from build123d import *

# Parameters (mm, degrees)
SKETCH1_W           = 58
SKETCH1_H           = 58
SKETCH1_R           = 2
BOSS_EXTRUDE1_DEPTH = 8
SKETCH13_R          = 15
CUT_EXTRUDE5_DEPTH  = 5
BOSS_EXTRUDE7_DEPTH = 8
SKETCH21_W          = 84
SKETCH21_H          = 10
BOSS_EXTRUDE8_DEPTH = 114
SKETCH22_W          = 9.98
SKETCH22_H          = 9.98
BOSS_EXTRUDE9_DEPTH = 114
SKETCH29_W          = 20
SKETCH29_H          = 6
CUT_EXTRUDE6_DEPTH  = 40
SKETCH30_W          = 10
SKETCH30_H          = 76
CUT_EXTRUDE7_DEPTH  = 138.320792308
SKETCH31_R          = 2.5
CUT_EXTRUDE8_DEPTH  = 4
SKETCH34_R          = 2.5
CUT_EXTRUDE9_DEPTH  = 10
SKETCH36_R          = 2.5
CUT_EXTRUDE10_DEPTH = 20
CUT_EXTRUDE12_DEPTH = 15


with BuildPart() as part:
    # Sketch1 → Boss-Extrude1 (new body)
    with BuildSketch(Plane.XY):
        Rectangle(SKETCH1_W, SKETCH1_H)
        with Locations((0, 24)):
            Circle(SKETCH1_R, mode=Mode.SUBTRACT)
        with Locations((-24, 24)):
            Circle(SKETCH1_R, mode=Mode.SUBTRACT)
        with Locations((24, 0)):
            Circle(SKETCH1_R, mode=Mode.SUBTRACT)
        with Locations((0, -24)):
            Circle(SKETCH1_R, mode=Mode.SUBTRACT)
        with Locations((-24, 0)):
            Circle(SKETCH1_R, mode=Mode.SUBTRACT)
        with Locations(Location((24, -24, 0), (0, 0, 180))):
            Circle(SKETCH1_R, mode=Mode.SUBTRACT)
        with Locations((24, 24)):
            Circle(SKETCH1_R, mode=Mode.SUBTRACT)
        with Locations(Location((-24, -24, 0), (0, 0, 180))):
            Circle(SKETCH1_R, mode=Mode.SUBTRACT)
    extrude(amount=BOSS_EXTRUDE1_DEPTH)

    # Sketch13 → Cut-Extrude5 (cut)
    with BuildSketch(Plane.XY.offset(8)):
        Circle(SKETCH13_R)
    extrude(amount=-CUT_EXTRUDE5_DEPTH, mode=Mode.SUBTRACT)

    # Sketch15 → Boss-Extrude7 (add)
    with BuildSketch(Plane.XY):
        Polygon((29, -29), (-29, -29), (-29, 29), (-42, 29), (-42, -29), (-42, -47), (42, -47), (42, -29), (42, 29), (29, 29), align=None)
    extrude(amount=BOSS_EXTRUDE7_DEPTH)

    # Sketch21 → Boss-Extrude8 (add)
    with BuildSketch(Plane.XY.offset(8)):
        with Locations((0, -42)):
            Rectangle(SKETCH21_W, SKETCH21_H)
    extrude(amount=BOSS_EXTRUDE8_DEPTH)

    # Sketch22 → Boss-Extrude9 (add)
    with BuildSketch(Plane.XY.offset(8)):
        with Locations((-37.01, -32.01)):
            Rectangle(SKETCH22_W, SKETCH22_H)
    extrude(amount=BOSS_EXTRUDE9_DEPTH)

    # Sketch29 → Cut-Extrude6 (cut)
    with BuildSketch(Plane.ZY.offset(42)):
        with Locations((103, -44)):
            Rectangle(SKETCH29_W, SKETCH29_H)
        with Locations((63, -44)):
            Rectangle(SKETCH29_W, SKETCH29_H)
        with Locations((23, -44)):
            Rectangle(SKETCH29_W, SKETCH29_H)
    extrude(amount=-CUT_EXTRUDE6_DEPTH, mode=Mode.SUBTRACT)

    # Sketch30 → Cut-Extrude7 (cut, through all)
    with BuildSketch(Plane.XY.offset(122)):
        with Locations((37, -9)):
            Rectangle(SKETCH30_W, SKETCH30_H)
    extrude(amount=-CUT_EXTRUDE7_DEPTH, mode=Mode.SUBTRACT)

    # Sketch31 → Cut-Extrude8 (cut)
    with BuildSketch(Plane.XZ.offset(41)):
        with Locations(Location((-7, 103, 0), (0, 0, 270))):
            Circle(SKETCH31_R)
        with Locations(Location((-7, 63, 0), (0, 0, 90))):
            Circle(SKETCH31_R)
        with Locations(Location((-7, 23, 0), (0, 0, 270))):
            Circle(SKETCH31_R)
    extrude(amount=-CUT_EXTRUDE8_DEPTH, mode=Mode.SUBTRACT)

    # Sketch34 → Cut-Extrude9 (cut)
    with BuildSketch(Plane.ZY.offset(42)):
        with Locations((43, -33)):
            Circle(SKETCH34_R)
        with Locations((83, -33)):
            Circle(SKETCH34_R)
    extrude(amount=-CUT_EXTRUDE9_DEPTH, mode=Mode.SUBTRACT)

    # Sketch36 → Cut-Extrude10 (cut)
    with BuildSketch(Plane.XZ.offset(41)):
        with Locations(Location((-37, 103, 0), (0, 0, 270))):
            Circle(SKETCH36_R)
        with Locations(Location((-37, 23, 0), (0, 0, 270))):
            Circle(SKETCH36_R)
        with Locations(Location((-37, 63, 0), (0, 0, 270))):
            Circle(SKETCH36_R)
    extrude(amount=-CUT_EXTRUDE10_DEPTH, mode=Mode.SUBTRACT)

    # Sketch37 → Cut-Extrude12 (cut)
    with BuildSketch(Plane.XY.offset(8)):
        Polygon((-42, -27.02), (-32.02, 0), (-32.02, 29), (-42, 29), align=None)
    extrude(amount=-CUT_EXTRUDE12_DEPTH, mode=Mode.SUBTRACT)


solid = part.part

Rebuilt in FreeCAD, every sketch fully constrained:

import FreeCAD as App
import Part
import Sketcher

V = App.Vector

doc = App.newDocument("Part")
params = doc.addObject("Spreadsheet::Sheet", "Params")
for row, (alias, value) in enumerate([
    ("sketch1_diameter", "4 mm"),
    ("sketch1_width", "58 mm"),
    ("pad1_length", "8 mm"),
    ("sketch2_diameter", "30 mm"),
    ("pocket1_length", "5 mm"),
    ("sketch3_width", "58 mm"),
    ("sketch3_width2", "13 mm"),
    ("sketch3_height", "76 mm"),
    ("pad2_length", "8 mm"),
    ("sketch4_width", "84 mm"),
    ("sketch4_height", "10 mm"),
    ("pad3_length", "114 mm"),
    ("sketch5_width", "9.98 mm"),
    ("pad4_length", "114 mm"),
    ("sketch6_width", "6 mm"),
    ("sketch6_height", "20 mm"),
    ("pocket2_length", "40 mm"),
    ("sketch7_width", "10 mm"),
    ("sketch7_height", "76 mm"),
    ("sketch8_diameter", "5 mm"),
    ("pocket4_length", "4 mm"),
    ("sketch9_diameter", "5 mm"),
    ("pocket5_length", "10 mm"),
    ("sketch10_diameter", "5 mm"),
    ("pocket6_length", "20 mm"),
    ("sketch11_height", "29 mm"),
    ("sketch11_width", "9.98 mm"),
    ("sketch11_height2", "56.02 mm"),
    ("pocket7_length", "15 mm"),
], start=1):
    params.set(f"A{row}", alias)
    params.set(f"B{row}", "=" + value)
    params.setAlias(f"B{row}", alias)

body = doc.addObject("PartDesign::Body", "Body")

# Sketch on XY plane
sketch1 = body.newObject("Sketcher::SketchObject", "Sketch")
sketch1.AttachmentSupport = (doc.getObject("XY_Plane"), [""])
sketch1.MapMode = "FlatFace"
sketch1.addGeometry(Part.LineSegment(V(-29, 29, 0), V(-29, -29, 0)), False)
sketch1.addGeometry(Part.LineSegment(V(-29, -29, 0), V(29, -29, 0)), False)
sketch1.addGeometry(Part.LineSegment(V(29, -29, 0), V(29, 29, 0)), False)
sketch1.addGeometry(Part.LineSegment(V(29, 29, 0), V(-29, 29, 0)), False)
sketch1.addGeometry(Part.Circle(V(-24, -24, 0), V(0, 0, 1), 2), False)
sketch1.addGeometry(Part.Circle(V(0, -24, 0), V(0, 0, 1), 2), False)
sketch1.addGeometry(Part.Circle(V(24, -24, 0), V(0, 0, 1), 2), False)
sketch1.addGeometry(Part.Circle(V(-24, 0, 0), V(0, 0, 1), 2), False)
sketch1.addGeometry(Part.Circle(V(-24, 24, 0), V(0, 0, 1), 2), False)
sketch1.addGeometry(Part.Circle(V(24, 0, 0), V(0, 0, 1), 2), False)
sketch1.addGeometry(Part.Circle(V(0, 24, 0), V(0, 0, 1), 2), False)
sketch1.addGeometry(Part.Circle(V(24, 24, 0), V(0, 0, 1), 2), False)
sketch1.addConstraint(Sketcher.Constraint("Coincident", 0, 2, 1, 1))
sketch1.addConstraint(Sketcher.Constraint("Coincident", 1, 2, 2, 1))
sketch1.addConstraint(Sketcher.Constraint("Coincident", 2, 2, 3, 1))
sketch1.addConstraint(Sketcher.Constraint("Coincident", 3, 2, 0, 1))
sketch1.addConstraint(Sketcher.Constraint("Vertical", 0))
sketch1.addConstraint(Sketcher.Constraint("Horizontal", 1))
sketch1.addConstraint(Sketcher.Constraint("Vertical", 2))
sketch1.addConstraint(Sketcher.Constraint("Horizontal", 3))
sketch1.addConstraint(Sketcher.Constraint("Equal", 4, 5))
sketch1.addConstraint(Sketcher.Constraint("Equal", 5, 6))
sketch1.addConstraint(Sketcher.Constraint("Equal", 6, 7))
sketch1.addConstraint(Sketcher.Constraint("Equal", 7, 8))
sketch1.addConstraint(Sketcher.Constraint("Equal", 8, 9))
sketch1.addConstraint(Sketcher.Constraint("Equal", 9, 10))
sketch1.addConstraint(Sketcher.Constraint("Equal", 10, 11))
sketch1.addConstraint(Sketcher.Constraint("Symmetric", 6, 3, 8, 3, -1, 1))
sketch1.addConstraint(Sketcher.Constraint("Symmetric", 7, 3, 9, 3, -1, 1))
sketch1.addConstraint(Sketcher.Constraint("Symmetric", 5, 3, 10, 3, -1, 1))
sketch1.addConstraint(Sketcher.Constraint("Symmetric", 4, 3, 11, 3, -1, 1))
sketch1.addConstraint(Sketcher.Constraint("Symmetric", 0, 2, 2, 2, -1, 1))
sketch1.addConstraint(Sketcher.Constraint("Symmetric", 4, 3, 6, 3, -2))
sketch1.addConstraint(Sketcher.Constraint("PointOnObject", 5, 3, -2))
sketch1.addConstraint(Sketcher.Constraint("PointOnObject", 7, 3, -1))
sketch1.addConstraint(Sketcher.Constraint("Horizontal", 4, 3, 5, 3))
sketch1.addConstraint(Sketcher.Constraint("Vertical", 4, 3, 7, 3))
sketch1.addConstraint(Sketcher.Constraint("Equal", 3, 0))
sketch1.addConstraint(Sketcher.Constraint("Diameter", 4, 4.0))
sketch1.addConstraint(Sketcher.Constraint("DistanceX", 1, 1, 1, 2, 58.0))
sketch1.addConstraint(Sketcher.Constraint("DistanceX", 4, 3, -1, 1, 24.0))
sketch1.addConstraint(Sketcher.Constraint("DistanceY", 4, 3, -1, 1, 24.0))
sketch1.setExpression("Constraints[26]", "Params.sketch1_diameter")
sketch1.setExpression("Constraints[27]", "Params.sketch1_width")
pad1 = body.newObject("PartDesign::Pad", "Pad")
pad1.Profile = sketch1
pad1.setExpression("Length", "Params.pad1_length")

# Sketch on XY plane
sketch2 = body.newObject("Sketcher::SketchObject", "Sketch001")
sketch2.AttachmentSupport = (doc.getObject("XY_Plane"), [""])
sketch2.MapMode = "FlatFace"
sketch2.AttachmentOffset = App.Placement(V(0, 0, 8), App.Rotation())
sketch2.addGeometry(Part.Circle(V(0, 0, 0), V(0, 0, 1), 15), False)
sketch2.addConstraint(Sketcher.Constraint("Coincident", 0, 3, -1, 1))
sketch2.addConstraint(Sketcher.Constraint("Diameter", 0, 30.0))
sketch2.setExpression("Constraints[1]", "Params.sketch2_diameter")
pocket1 = body.newObject("PartDesign::Pocket", "Pocket")
pocket1.Profile = sketch2
pocket1.setExpression("Length", "Params.pocket1_length")

# Sketch on XY plane
sketch3 = body.newObject("Sketcher::SketchObject", "Sketch002")
sketch3.AttachmentSupport = (doc.getObject("XY_Plane"), [""])
sketch3.MapMode = "FlatFace"
sketch3.addGeometry(Part.LineSegment(V(29, -29, 0), V(-29, -29, 0)), False)
sketch3.addGeometry(Part.LineSegment(V(-29, -29, 0), V(-29, 29, 0)), False)
sketch3.addGeometry(Part.LineSegment(V(-29, 29, 0), V(-42, 29, 0)), False)
sketch3.addGeometry(Part.LineSegment(V(-42, 29, 0), V(-42, -47, 0)), False)
sketch3.addGeometry(Part.LineSegment(V(-42, -47, 0), V(42, -47, 0)), False)
sketch3.addGeometry(Part.LineSegment(V(42, -47, 0), V(42, 29, 0)), False)
sketch3.addGeometry(Part.LineSegment(V(42, 29, 0), V(29, 29, 0)), False)
sketch3.addGeometry(Part.LineSegment(V(29, 29, 0), V(29, -29, 0)), False)
sketch3.addConstraint(Sketcher.Constraint("Coincident", 0, 2, 1, 1))
sketch3.addConstraint(Sketcher.Constraint("Coincident", 1, 2, 2, 1))
sketch3.addConstraint(Sketcher.Constraint("Coincident", 2, 2, 3, 1))
sketch3.addConstraint(Sketcher.Constraint("Coincident", 3, 2, 4, 1))
sketch3.addConstraint(Sketcher.Constraint("Coincident", 4, 2, 5, 1))
sketch3.addConstraint(Sketcher.Constraint("Coincident", 5, 2, 6, 1))
sketch3.addConstraint(Sketcher.Constraint("Coincident", 6, 2, 7, 1))
sketch3.addConstraint(Sketcher.Constraint("Coincident", 7, 2, 0, 1))
sketch3.addConstraint(Sketcher.Constraint("Horizontal", 0))
sketch3.addConstraint(Sketcher.Constraint("Vertical", 1))
sketch3.addConstraint(Sketcher.Constraint("Horizontal", 2))
sketch3.addConstraint(Sketcher.Constraint("Vertical", 3))
sketch3.addConstraint(Sketcher.Constraint("Horizontal", 4))
sketch3.addConstraint(Sketcher.Constraint("Vertical", 5))
sketch3.addConstraint(Sketcher.Constraint("Horizontal", 6))
sketch3.addConstraint(Sketcher.Constraint("Vertical", 7))
sketch3.addConstraint(Sketcher.Constraint("Symmetric", 0, 2, 6, 2, -1, 1))
sketch3.addConstraint(Sketcher.Constraint("Symmetric", 2, 2, 5, 2, -2))
sketch3.addConstraint(Sketcher.Constraint("Equal", 0, 1))
sketch3.addConstraint(Sketcher.Constraint("DistanceX", 0, 2, 0, 1, 58.0))
sketch3.addConstraint(Sketcher.Constraint("DistanceX", 2, 2, 2, 1, 13.0))
sketch3.addConstraint(Sketcher.Constraint("DistanceY", 3, 2, 3, 1, 76.0))
sketch3.setExpression("Constraints[19]", "Params.sketch3_width")
sketch3.setExpression("Constraints[20]", "Params.sketch3_width2")
sketch3.setExpression("Constraints[21]", "Params.sketch3_height")
pad2 = body.newObject("PartDesign::Pad", "Pad001")
pad2.Profile = sketch3
pad2.setExpression("Length", "Params.pad2_length")

# Sketch on XY plane
sketch4 = body.newObject("Sketcher::SketchObject", "Sketch003")
sketch4.AttachmentSupport = (doc.getObject("XY_Plane"), [""])
sketch4.MapMode = "FlatFace"
sketch4.AttachmentOffset = App.Placement(V(0, 0, 8), App.Rotation())
sketch4.addGeometry(Part.LineSegment(V(-42, -37, 0), V(-42, -47, 0)), False)
sketch4.addGeometry(Part.LineSegment(V(-42, -47, 0), V(42, -47, 0)), False)
sketch4.addGeometry(Part.LineSegment(V(42, -47, 0), V(42, -37, 0)), False)
sketch4.addGeometry(Part.LineSegment(V(42, -37, 0), V(-42, -37, 0)), False)
sketch4.addConstraint(Sketcher.Constraint("Coincident", 0, 2, 1, 1))
sketch4.addConstraint(Sketcher.Constraint("Coincident", 1, 2, 2, 1))
sketch4.addConstraint(Sketcher.Constraint("Coincident", 2, 2, 3, 1))
sketch4.addConstraint(Sketcher.Constraint("Coincident", 3, 2, 0, 1))
sketch4.addConstraint(Sketcher.Constraint("Vertical", 0))
sketch4.addConstraint(Sketcher.Constraint("Horizontal", 1))
sketch4.addConstraint(Sketcher.Constraint("Vertical", 2))
sketch4.addConstraint(Sketcher.Constraint("Horizontal", 3))
sketch4.addConstraint(Sketcher.Constraint("DistanceX", 1, 1, 1, 2, 84.0))
sketch4.addConstraint(Sketcher.Constraint("DistanceY", 0, 2, 0, 1, 10.0))
sketch4.addConstraint(Sketcher.Constraint("DistanceX", 0, 2, -1, 1, 42.0))
sketch4.addConstraint(Sketcher.Constraint("DistanceY", 0, 2, -1, 1, 47.0))
sketch4.setExpression("Constraints[8]", "Params.sketch4_width")
sketch4.setExpression("Constraints[9]", "Params.sketch4_height")
pad3 = body.newObject("PartDesign::Pad", "Pad002")
pad3.Profile = sketch4
pad3.setExpression("Length", "Params.pad3_length")

# Sketch on XY plane
sketch5 = body.newObject("Sketcher::SketchObject", "Sketch004")
sketch5.AttachmentSupport = (doc.getObject("XY_Plane"), [""])
sketch5.MapMode = "FlatFace"
sketch5.AttachmentOffset = App.Placement(V(0, 0, 8), App.Rotation())
sketch5.addGeometry(Part.LineSegment(V(-42, -27, 0), V(-42, -37, 0)), False)
sketch5.addGeometry(Part.LineSegment(V(-42, -37, 0), V(-32, -37, 0)), False)
sketch5.addGeometry(Part.LineSegment(V(-32, -37, 0), V(-32, -27, 0)), False)
sketch5.addGeometry(Part.LineSegment(V(-32, -27, 0), V(-42, -27, 0)), False)
sketch5.addConstraint(Sketcher.Constraint("Coincident", 0, 2, 1, 1))
sketch5.addConstraint(Sketcher.Constraint("Coincident", 1, 2, 2, 1))
sketch5.addConstraint(Sketcher.Constraint("Coincident", 2, 2, 3, 1))
sketch5.addConstraint(Sketcher.Constraint("Coincident", 3, 2, 0, 1))
sketch5.addConstraint(Sketcher.Constraint("Vertical", 0))
sketch5.addConstraint(Sketcher.Constraint("Horizontal", 1))
sketch5.addConstraint(Sketcher.Constraint("Vertical", 2))
sketch5.addConstraint(Sketcher.Constraint("Horizontal", 3))
sketch5.addConstraint(Sketcher.Constraint("Equal", 3, 0))
sketch5.addConstraint(Sketcher.Constraint("DistanceX", 0, 2, -1, 1, 42.0))
sketch5.addConstraint(Sketcher.Constraint("DistanceY", 0, 2, -1, 1, 37.0))
sketch5.addConstraint(Sketcher.Constraint("DistanceX", 1, 1, 1, 2, 9.98))
sketch5.setExpression("Constraints[11]", "Params.sketch5_width")
pad4 = body.newObject("PartDesign::Pad", "Pad003")
pad4.Profile = sketch5
pad4.setExpression("Length", "Params.pad4_length")

# Sketch on YZ plane
sketch6 = body.newObject("Sketcher::SketchObject", "Sketch005")
sketch6.AttachmentSupport = (doc.getObject("YZ_Plane"), [""])
sketch6.MapMode = "FlatFace"
sketch6.AttachmentOffset = App.Placement(V(0, 0, -42), App.Rotation())
sketch6.addGeometry(Part.LineSegment(V(-41, 93, 0), V(-47, 93, 0)), False)
sketch6.addGeometry(Part.LineSegment(V(-47, 93, 0), V(-47, 113, 0)), False)
sketch6.addGeometry(Part.LineSegment(V(-47, 113, 0), V(-41, 113, 0)), False)
sketch6.addGeometry(Part.LineSegment(V(-41, 113, 0), V(-41, 93, 0)), False)
sketch6.addGeometry(Part.LineSegment(V(-41, 53, 0), V(-47, 53, 0)), False)
sketch6.addGeometry(Part.LineSegment(V(-47, 53, 0), V(-47, 73, 0)), False)
sketch6.addGeometry(Part.LineSegment(V(-47, 73, 0), V(-41, 73, 0)), False)
sketch6.addGeometry(Part.LineSegment(V(-41, 73, 0), V(-41, 53, 0)), False)
sketch6.addGeometry(Part.LineSegment(V(-41, 13, 0), V(-47, 13, 0)), False)
sketch6.addGeometry(Part.LineSegment(V(-47, 13, 0), V(-47, 33, 0)), False)
sketch6.addGeometry(Part.LineSegment(V(-47, 33, 0), V(-41, 33, 0)), False)
sketch6.addGeometry(Part.LineSegment(V(-41, 33, 0), V(-41, 13, 0)), False)
sketch6.addConstraint(Sketcher.Constraint("Coincident", 0, 2, 1, 1))
sketch6.addConstraint(Sketcher.Constraint("Coincident", 1, 2, 2, 1))
sketch6.addConstraint(Sketcher.Constraint("Coincident", 2, 2, 3, 1))
sketch6.addConstraint(Sketcher.Constraint("Coincident", 3, 2, 0, 1))
sketch6.addConstraint(Sketcher.Constraint("Coincident", 4, 2, 5, 1))
sketch6.addConstraint(Sketcher.Constraint("Coincident", 5, 2, 6, 1))
sketch6.addConstraint(Sketcher.Constraint("Coincident", 6, 2, 7, 1))
sketch6.addConstraint(Sketcher.Constraint("Coincident", 7, 2, 4, 1))
sketch6.addConstraint(Sketcher.Constraint("Coincident", 8, 2, 9, 1))
sketch6.addConstraint(Sketcher.Constraint("Coincident", 9, 2, 10, 1))
sketch6.addConstraint(Sketcher.Constraint("Coincident", 10, 2, 11, 1))
sketch6.addConstraint(Sketcher.Constraint("Coincident", 11, 2, 8, 1))
sketch6.addConstraint(Sketcher.Constraint("Horizontal", 0))
sketch6.addConstraint(Sketcher.Constraint("Vertical", 1))
sketch6.addConstraint(Sketcher.Constraint("Horizontal", 2))
sketch6.addConstraint(Sketcher.Constraint("Vertical", 3))
sketch6.addConstraint(Sketcher.Constraint("Horizontal", 4))
sketch6.addConstraint(Sketcher.Constraint("Vertical", 5))
sketch6.addConstraint(Sketcher.Constraint("Horizontal", 6))
sketch6.addConstraint(Sketcher.Constraint("Vertical", 7))
sketch6.addConstraint(Sketcher.Constraint("Horizontal", 8))
sketch6.addConstraint(Sketcher.Constraint("Vertical", 9))
sketch6.addConstraint(Sketcher.Constraint("Horizontal", 10))
sketch6.addConstraint(Sketcher.Constraint("Vertical", 11))
sketch6.addConstraint(Sketcher.Constraint("Vertical", 1, 2, 4, 2))
sketch6.addConstraint(Sketcher.Constraint("Vertical", 3, 2, 6, 2))
sketch6.addConstraint(Sketcher.Constraint("Vertical", 5, 2, 8, 2))
sketch6.addConstraint(Sketcher.Constraint("Vertical", 7, 2, 10, 2))
sketch6.addConstraint(Sketcher.Constraint("Equal", 3, 5))
sketch6.addConstraint(Sketcher.Constraint("Equal", 7, 9))
sketch6.addConstraint(Sketcher.Constraint("DistanceX", 0, 2, 0, 1, 6.0))
sketch6.addConstraint(Sketcher.Constraint("DistanceY", 1, 1, 1, 2, 20.0))
sketch6.addConstraint(Sketcher.Constraint("DistanceX", 0, 2, -1, 1, 47.0))
sketch6.addConstraint(Sketcher.Constraint("DistanceY", -1, 1, 0, 2, 93.0))
sketch6.addConstraint(Sketcher.Constraint("DistanceY", -1, 1, 4, 2, 53.0))
sketch6.addConstraint(Sketcher.Constraint("DistanceY", -1, 1, 8, 2, 13.0))
sketch6.setExpression("Constraints[30]", "Params.sketch6_width")
sketch6.setExpression("Constraints[31]", "Params.sketch6_height")
pocket2 = body.newObject("PartDesign::Pocket", "Pocket001")
pocket2.Profile = sketch6
pocket2.setExpression("Length", "Params.pocket2_length")
pocket2.Reversed = True

# Sketch on XY plane
sketch7 = body.newObject("Sketcher::SketchObject", "Sketch006")
sketch7.AttachmentSupport = (doc.getObject("XY_Plane"), [""])
sketch7.MapMode = "FlatFace"
sketch7.AttachmentOffset = App.Placement(V(0, 0, 122), App.Rotation())
sketch7.addGeometry(Part.LineSegment(V(32, 29, 0), V(32, -47, 0)), False)
sketch7.addGeometry(Part.LineSegment(V(32, -47, 0), V(42, -47, 0)), False)
sketch7.addGeometry(Part.LineSegment(V(42, -47, 0), V(42, 29, 0)), False)
sketch7.addGeometry(Part.LineSegment(V(42, 29, 0), V(32, 29, 0)), False)
sketch7.addConstraint(Sketcher.Constraint("Coincident", 0, 2, 1, 1))
sketch7.addConstraint(Sketcher.Constraint("Coincident", 1, 2, 2, 1))
sketch7.addConstraint(Sketcher.Constraint("Coincident", 2, 2, 3, 1))
sketch7.addConstraint(Sketcher.Constraint("Coincident", 3, 2, 0, 1))
sketch7.addConstraint(Sketcher.Constraint("Vertical", 0))
sketch7.addConstraint(Sketcher.Constraint("Horizontal", 1))
sketch7.addConstraint(Sketcher.Constraint("Vertical", 2))
sketch7.addConstraint(Sketcher.Constraint("Horizontal", 3))
sketch7.addConstraint(Sketcher.Constraint("DistanceX", 1, 1, 1, 2, 10.0))
sketch7.addConstraint(Sketcher.Constraint("DistanceY", 0, 2, 0, 1, 76.0))
sketch7.addConstraint(Sketcher.Constraint("DistanceX", -1, 1, 0, 2, 32.0))
sketch7.addConstraint(Sketcher.Constraint("DistanceY", 0, 2, -1, 1, 47.0))
sketch7.setExpression("Constraints[8]", "Params.sketch7_width")
sketch7.setExpression("Constraints[9]", "Params.sketch7_height")
pocket3 = body.newObject("PartDesign::Pocket", "Pocket002")
pocket3.Profile = sketch7
pocket3.Type = "ThroughAll"

# Sketch on XZ plane
sketch8 = body.newObject("Sketcher::SketchObject", "Sketch007")
sketch8.AttachmentSupport = (doc.getObject("XZ_Plane"), [""])
sketch8.MapMode = "FlatFace"
sketch8.AttachmentOffset = App.Placement(V(0, 0, 41), App.Rotation())
sketch8.addGeometry(Part.Circle(V(-7, 103, 0), V(0, 0, 1), 2.5), False)
sketch8.addGeometry(Part.Circle(V(-7, 63, 0), V(0, 0, 1), 2.5), False)
sketch8.addGeometry(Part.Circle(V(-7, 23, 0), V(0, 0, 1), 2.5), False)
sketch8.addConstraint(Sketcher.Constraint("Equal", 0, 1))
sketch8.addConstraint(Sketcher.Constraint("Equal", 1, 2))
sketch8.addConstraint(Sketcher.Constraint("Vertical", 0, 3, 1, 3))
sketch8.addConstraint(Sketcher.Constraint("Vertical", 1, 3, 2, 3))
sketch8.addConstraint(Sketcher.Constraint("Diameter", 0, 5.0))
sketch8.addConstraint(Sketcher.Constraint("DistanceX", 0, 3, -1, 1, 7.0))
sketch8.addConstraint(Sketcher.Constraint("DistanceY", -1, 1, 0, 3, 103.0))
sketch8.addConstraint(Sketcher.Constraint("DistanceY", -1, 1, 1, 3, 63.0))
sketch8.addConstraint(Sketcher.Constraint("DistanceY", -1, 1, 2, 3, 23.0))
sketch8.setExpression("Constraints[4]", "Params.sketch8_diameter")
pocket4 = body.newObject("PartDesign::Pocket", "Pocket003")
pocket4.Profile = sketch8
pocket4.setExpression("Length", "Params.pocket4_length")

# Sketch on YZ plane
sketch9 = body.newObject("Sketcher::SketchObject", "Sketch008")
sketch9.AttachmentSupport = (doc.getObject("YZ_Plane"), [""])
sketch9.MapMode = "FlatFace"
sketch9.AttachmentOffset = App.Placement(V(0, 0, -42), App.Rotation())
sketch9.addGeometry(Part.Circle(V(-33, 43, 0), V(0, 0, 1), 2.5), False)
sketch9.addGeometry(Part.Circle(V(-33, 83, 0), V(0, 0, 1), 2.5), False)
sketch9.addConstraint(Sketcher.Constraint("Equal", 0, 1))
sketch9.addConstraint(Sketcher.Constraint("Vertical", 0, 3, 1, 3))
sketch9.addConstraint(Sketcher.Constraint("Diameter", 0, 5.0))
sketch9.addConstraint(Sketcher.Constraint("DistanceX", 0, 3, -1, 1, 33.0))
sketch9.addConstraint(Sketcher.Constraint("DistanceY", -1, 1, 0, 3, 43.0))
sketch9.addConstraint(Sketcher.Constraint("DistanceY", -1, 1, 1, 3, 83.0))
sketch9.setExpression("Constraints[2]", "Params.sketch9_diameter")
pocket5 = body.newObject("PartDesign::Pocket", "Pocket004")
pocket5.Profile = sketch9
pocket5.setExpression("Length", "Params.pocket5_length")
pocket5.Reversed = True

# Sketch on XZ plane
sketch10 = body.newObject("Sketcher::SketchObject", "Sketch009")
sketch10.AttachmentSupport = (doc.getObject("XZ_Plane"), [""])
sketch10.MapMode = "FlatFace"
sketch10.AttachmentOffset = App.Placement(V(0, 0, 41), App.Rotation())
sketch10.addGeometry(Part.Circle(V(-37, 103, 0), V(0, 0, 1), 2.5), False)
sketch10.addGeometry(Part.Circle(V(-37, 23, 0), V(0, 0, 1), 2.5), False)
sketch10.addGeometry(Part.Circle(V(-37, 63, 0), V(0, 0, 1), 2.5), False)
sketch10.addConstraint(Sketcher.Constraint("Equal", 0, 1))
sketch10.addConstraint(Sketcher.Constraint("Equal", 1, 2))
sketch10.addConstraint(Sketcher.Constraint("Vertical", 0, 3, 1, 3))
sketch10.addConstraint(Sketcher.Constraint("Vertical", 1, 3, 2, 3))
sketch10.addConstraint(Sketcher.Constraint("Diameter", 0, 5.0))
sketch10.addConstraint(Sketcher.Constraint("DistanceX", 0, 3, -1, 1, 37.0))
sketch10.addConstraint(Sketcher.Constraint("DistanceY", -1, 1, 0, 3, 103.0))
sketch10.addConstraint(Sketcher.Constraint("DistanceY", -1, 1, 1, 3, 23.0))
sketch10.addConstraint(Sketcher.Constraint("DistanceY", -1, 1, 2, 3, 63.0))
sketch10.setExpression("Constraints[4]", "Params.sketch10_diameter")
pocket6 = body.newObject("PartDesign::Pocket", "Pocket005")
pocket6.Profile = sketch10
pocket6.setExpression("Length", "Params.pocket6_length")

# Sketch on XY plane
sketch11 = body.newObject("Sketcher::SketchObject", "Sketch010")
sketch11.AttachmentSupport = (doc.getObject("XY_Plane"), [""])
sketch11.MapMode = "FlatFace"
sketch11.AttachmentOffset = App.Placement(V(0, 0, 8), App.Rotation())
sketch11.addGeometry(Part.LineSegment(V(-42, -27, 0), V(-32, 0, 0)), False)
sketch11.addGeometry(Part.LineSegment(V(-32, 0, 0), V(-32, 29, 0)), False)
sketch11.addGeometry(Part.LineSegment(V(-32, 29, 0), V(-42, 29, 0)), False)
sketch11.addGeometry(Part.LineSegment(V(-42, 29, 0), V(-42, -27, 0)), False)
sketch11.addConstraint(Sketcher.Constraint("Coincident", 0, 2, 1, 1))
sketch11.addConstraint(Sketcher.Constraint("Coincident", 1, 2, 2, 1))
sketch11.addConstraint(Sketcher.Constraint("Coincident", 2, 2, 3, 1))
sketch11.addConstraint(Sketcher.Constraint("Coincident", 3, 2, 0, 1))
sketch11.addConstraint(Sketcher.Constraint("Vertical", 1))
sketch11.addConstraint(Sketcher.Constraint("Horizontal", 2))
sketch11.addConstraint(Sketcher.Constraint("Vertical", 3))
sketch11.addConstraint(Sketcher.Constraint("PointOnObject", 0, 2, -1))
sketch11.addConstraint(Sketcher.Constraint("DistanceY", 1, 1, 1, 2, 29.0))
sketch11.addConstraint(Sketcher.Constraint("DistanceX", 2, 2, -1, 1, 42.0))
sketch11.addConstraint(Sketcher.Constraint("DistanceX", 2, 2, 2, 1, 9.98))
sketch11.addConstraint(Sketcher.Constraint("DistanceY", 3, 2, 3, 1, 56.02))
sketch11.setExpression("Constraints[8]", "Params.sketch11_height")
sketch11.setExpression("Constraints[10]", "Params.sketch11_width")
sketch11.setExpression("Constraints[11]", "Params.sketch11_height2")
pocket7 = body.newObject("PartDesign::Pocket", "Pocket006")
pocket7.Profile = sketch11
pocket7.setExpression("Length", "Params.pocket7_length")

doc.recompute()
